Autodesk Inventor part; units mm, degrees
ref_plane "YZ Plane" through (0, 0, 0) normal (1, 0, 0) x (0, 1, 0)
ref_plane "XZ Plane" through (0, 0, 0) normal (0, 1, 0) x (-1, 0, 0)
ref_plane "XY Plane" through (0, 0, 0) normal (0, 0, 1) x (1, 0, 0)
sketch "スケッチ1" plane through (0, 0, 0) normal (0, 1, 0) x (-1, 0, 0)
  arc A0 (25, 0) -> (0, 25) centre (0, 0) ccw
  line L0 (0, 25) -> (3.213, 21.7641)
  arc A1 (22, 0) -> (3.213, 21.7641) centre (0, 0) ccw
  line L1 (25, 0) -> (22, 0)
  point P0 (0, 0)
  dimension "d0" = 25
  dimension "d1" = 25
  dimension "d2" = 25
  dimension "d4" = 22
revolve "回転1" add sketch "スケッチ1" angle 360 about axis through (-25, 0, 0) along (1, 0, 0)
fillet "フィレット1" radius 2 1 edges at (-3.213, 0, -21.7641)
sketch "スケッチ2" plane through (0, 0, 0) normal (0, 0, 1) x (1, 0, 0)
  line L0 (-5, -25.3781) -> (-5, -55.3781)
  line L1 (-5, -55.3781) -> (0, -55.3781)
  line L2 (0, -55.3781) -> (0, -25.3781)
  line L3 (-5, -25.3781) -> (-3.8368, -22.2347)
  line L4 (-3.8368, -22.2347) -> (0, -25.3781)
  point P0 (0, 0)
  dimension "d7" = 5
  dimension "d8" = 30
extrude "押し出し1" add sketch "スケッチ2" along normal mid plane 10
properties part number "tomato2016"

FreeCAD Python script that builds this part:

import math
import FreeCAD as App
import Part
import Sketcher
from FreeCAD import Vector


def edges_at(feature, points):
    """Names of the edges that pass closest to the given points."""
    edges = feature.Shape.Edges
    near = lambda p: min(range(len(edges)), key=lambda i: edges[i].distToShape(Part.Vertex(*p))[0])
    return sorted({f"Edge{near(p) + 1}" for p in points})

doc = App.newDocument("Part")
body = doc.addObject("PartDesign::Body", "Body")

sketch1 = doc.addObject("Sketcher::SketchObject", "Sketch")
body.addObject(sketch1)
sketch1.AttachmentSupport = (doc.XZ_Plane, [""])
sketch1.MapMode = "FlatFace"
sketch1.addGeometry([
    Part.LineSegment(Vector(-22, 0, 0), Vector(-25, 0, 0)),
    Part.ArcOfCircle(Part.Circle(Vector(0, 0, 0), Vector(0, 0, 1), 25), math.radians(90), math.radians(180)),
    Part.LineSegment(Vector(0, 25, 0), Vector(-3.2, 21.8, 0)),
    Part.ArcOfCircle(Part.Circle(Vector(0, 0, 0), Vector(0, 0, 1), 22), math.radians(98), math.radians(180)),
], False)
sketch1.addConstraint([
    Sketcher.Constraint("Coincident", 0, 2, 1, 2),
    Sketcher.Constraint("Coincident", 1, 1, 2, 1),
    Sketcher.Constraint("Coincident", 2, 2, 3, 1),
    Sketcher.Constraint("Coincident", 3, 2, 0, 1),
    Sketcher.Constraint("Horizontal", 0),
    Sketcher.Constraint("Coincident", 1, 3, -1, 1),
    Sketcher.Constraint("Coincident", 3, 3, -1, 1),
    Sketcher.Constraint("PointOnObject", 0, 2, -1),
    Sketcher.Constraint("PointOnObject", 1, 1, -2),
    Sketcher.Constraint("Radius", 1, 25.0),
    Sketcher.Constraint("Radius", 3, 22.0),
    Sketcher.Constraint("Distance", 2, 4.56),
])
revolution = doc.addObject("PartDesign::Revolution", "Revolution")
body.addObject(revolution)
revolution.Profile = sketch1
revolution.ReferenceAxis = (sketch1, ["H_Axis"])
revolution.Angle = 360
doc.recompute()

fillet = doc.addObject("PartDesign::Fillet", "Fillet")
body.addObject(fillet)
fillet.Base = (revolution, edges_at(revolution, [(-3.213, 0, -21.764)]))
fillet.Radius = 2

sketch2 = doc.addObject("Sketcher::SketchObject", "Sketch001")
body.addObject(sketch2)
sketch2.AttachmentSupport = (doc.XY_Plane, [""])
sketch2.MapMode = "FlatFace"
sketch2.addGeometry([
    Part.LineSegment(Vector(-3.8, -22.2, 0), Vector(-5, -25.4, 0)),
    Part.LineSegment(Vector(-5, -25.4, 0), Vector(-5, -55.4, 0)),
    Part.LineSegment(Vector(-5, -55.4, 0), Vector(0, -55.4, 0)),
    Part.LineSegment(Vector(0, -55.4, 0), Vector(0, -25.4, 0)),
    Part.LineSegment(Vector(0, -25.4, 0), Vector(-3.8, -22.2, 0)),
], False)
sketch2.addConstraint([
    Sketcher.Constraint("Coincident", 0, 2, 1, 1),
    Sketcher.Constraint("Coincident", 1, 2, 2, 1),
    Sketcher.Constraint("Coincident", 2, 2, 3, 1),
    Sketcher.Constraint("Coincident", 3, 2, 4, 1),
    Sketcher.Constraint("Coincident", 4, 2, 0, 1),
    Sketcher.Constraint("Vertical", 1),
    Sketcher.Constraint("Horizontal", 2),
    Sketcher.Constraint("Vertical", 3),
    Sketcher.Constraint("PointOnObject", 2, 2, -2),
    Sketcher.Constraint("Horizontal", 0, 2, 3, 2),
    Sketcher.Constraint("DistanceX", 2, 1, 2, 2, 5.0),
    Sketcher.Constraint("DistanceY", 1, 2, 1, 1, 30.0),
    Sketcher.Constraint("Distance", 4, 4.96),
    Sketcher.Constraint("DistanceY", 0, 2, -1, 1, 25.378),
    Sketcher.Constraint("Distance", 0, 3.3517),
])
pad1 = doc.addObject("PartDesign::Pad", "Pad")
body.addObject(pad1)
pad1.Profile = sketch2
pad1.Length = 10
pad1.Midplane = True

doc.recompute()
